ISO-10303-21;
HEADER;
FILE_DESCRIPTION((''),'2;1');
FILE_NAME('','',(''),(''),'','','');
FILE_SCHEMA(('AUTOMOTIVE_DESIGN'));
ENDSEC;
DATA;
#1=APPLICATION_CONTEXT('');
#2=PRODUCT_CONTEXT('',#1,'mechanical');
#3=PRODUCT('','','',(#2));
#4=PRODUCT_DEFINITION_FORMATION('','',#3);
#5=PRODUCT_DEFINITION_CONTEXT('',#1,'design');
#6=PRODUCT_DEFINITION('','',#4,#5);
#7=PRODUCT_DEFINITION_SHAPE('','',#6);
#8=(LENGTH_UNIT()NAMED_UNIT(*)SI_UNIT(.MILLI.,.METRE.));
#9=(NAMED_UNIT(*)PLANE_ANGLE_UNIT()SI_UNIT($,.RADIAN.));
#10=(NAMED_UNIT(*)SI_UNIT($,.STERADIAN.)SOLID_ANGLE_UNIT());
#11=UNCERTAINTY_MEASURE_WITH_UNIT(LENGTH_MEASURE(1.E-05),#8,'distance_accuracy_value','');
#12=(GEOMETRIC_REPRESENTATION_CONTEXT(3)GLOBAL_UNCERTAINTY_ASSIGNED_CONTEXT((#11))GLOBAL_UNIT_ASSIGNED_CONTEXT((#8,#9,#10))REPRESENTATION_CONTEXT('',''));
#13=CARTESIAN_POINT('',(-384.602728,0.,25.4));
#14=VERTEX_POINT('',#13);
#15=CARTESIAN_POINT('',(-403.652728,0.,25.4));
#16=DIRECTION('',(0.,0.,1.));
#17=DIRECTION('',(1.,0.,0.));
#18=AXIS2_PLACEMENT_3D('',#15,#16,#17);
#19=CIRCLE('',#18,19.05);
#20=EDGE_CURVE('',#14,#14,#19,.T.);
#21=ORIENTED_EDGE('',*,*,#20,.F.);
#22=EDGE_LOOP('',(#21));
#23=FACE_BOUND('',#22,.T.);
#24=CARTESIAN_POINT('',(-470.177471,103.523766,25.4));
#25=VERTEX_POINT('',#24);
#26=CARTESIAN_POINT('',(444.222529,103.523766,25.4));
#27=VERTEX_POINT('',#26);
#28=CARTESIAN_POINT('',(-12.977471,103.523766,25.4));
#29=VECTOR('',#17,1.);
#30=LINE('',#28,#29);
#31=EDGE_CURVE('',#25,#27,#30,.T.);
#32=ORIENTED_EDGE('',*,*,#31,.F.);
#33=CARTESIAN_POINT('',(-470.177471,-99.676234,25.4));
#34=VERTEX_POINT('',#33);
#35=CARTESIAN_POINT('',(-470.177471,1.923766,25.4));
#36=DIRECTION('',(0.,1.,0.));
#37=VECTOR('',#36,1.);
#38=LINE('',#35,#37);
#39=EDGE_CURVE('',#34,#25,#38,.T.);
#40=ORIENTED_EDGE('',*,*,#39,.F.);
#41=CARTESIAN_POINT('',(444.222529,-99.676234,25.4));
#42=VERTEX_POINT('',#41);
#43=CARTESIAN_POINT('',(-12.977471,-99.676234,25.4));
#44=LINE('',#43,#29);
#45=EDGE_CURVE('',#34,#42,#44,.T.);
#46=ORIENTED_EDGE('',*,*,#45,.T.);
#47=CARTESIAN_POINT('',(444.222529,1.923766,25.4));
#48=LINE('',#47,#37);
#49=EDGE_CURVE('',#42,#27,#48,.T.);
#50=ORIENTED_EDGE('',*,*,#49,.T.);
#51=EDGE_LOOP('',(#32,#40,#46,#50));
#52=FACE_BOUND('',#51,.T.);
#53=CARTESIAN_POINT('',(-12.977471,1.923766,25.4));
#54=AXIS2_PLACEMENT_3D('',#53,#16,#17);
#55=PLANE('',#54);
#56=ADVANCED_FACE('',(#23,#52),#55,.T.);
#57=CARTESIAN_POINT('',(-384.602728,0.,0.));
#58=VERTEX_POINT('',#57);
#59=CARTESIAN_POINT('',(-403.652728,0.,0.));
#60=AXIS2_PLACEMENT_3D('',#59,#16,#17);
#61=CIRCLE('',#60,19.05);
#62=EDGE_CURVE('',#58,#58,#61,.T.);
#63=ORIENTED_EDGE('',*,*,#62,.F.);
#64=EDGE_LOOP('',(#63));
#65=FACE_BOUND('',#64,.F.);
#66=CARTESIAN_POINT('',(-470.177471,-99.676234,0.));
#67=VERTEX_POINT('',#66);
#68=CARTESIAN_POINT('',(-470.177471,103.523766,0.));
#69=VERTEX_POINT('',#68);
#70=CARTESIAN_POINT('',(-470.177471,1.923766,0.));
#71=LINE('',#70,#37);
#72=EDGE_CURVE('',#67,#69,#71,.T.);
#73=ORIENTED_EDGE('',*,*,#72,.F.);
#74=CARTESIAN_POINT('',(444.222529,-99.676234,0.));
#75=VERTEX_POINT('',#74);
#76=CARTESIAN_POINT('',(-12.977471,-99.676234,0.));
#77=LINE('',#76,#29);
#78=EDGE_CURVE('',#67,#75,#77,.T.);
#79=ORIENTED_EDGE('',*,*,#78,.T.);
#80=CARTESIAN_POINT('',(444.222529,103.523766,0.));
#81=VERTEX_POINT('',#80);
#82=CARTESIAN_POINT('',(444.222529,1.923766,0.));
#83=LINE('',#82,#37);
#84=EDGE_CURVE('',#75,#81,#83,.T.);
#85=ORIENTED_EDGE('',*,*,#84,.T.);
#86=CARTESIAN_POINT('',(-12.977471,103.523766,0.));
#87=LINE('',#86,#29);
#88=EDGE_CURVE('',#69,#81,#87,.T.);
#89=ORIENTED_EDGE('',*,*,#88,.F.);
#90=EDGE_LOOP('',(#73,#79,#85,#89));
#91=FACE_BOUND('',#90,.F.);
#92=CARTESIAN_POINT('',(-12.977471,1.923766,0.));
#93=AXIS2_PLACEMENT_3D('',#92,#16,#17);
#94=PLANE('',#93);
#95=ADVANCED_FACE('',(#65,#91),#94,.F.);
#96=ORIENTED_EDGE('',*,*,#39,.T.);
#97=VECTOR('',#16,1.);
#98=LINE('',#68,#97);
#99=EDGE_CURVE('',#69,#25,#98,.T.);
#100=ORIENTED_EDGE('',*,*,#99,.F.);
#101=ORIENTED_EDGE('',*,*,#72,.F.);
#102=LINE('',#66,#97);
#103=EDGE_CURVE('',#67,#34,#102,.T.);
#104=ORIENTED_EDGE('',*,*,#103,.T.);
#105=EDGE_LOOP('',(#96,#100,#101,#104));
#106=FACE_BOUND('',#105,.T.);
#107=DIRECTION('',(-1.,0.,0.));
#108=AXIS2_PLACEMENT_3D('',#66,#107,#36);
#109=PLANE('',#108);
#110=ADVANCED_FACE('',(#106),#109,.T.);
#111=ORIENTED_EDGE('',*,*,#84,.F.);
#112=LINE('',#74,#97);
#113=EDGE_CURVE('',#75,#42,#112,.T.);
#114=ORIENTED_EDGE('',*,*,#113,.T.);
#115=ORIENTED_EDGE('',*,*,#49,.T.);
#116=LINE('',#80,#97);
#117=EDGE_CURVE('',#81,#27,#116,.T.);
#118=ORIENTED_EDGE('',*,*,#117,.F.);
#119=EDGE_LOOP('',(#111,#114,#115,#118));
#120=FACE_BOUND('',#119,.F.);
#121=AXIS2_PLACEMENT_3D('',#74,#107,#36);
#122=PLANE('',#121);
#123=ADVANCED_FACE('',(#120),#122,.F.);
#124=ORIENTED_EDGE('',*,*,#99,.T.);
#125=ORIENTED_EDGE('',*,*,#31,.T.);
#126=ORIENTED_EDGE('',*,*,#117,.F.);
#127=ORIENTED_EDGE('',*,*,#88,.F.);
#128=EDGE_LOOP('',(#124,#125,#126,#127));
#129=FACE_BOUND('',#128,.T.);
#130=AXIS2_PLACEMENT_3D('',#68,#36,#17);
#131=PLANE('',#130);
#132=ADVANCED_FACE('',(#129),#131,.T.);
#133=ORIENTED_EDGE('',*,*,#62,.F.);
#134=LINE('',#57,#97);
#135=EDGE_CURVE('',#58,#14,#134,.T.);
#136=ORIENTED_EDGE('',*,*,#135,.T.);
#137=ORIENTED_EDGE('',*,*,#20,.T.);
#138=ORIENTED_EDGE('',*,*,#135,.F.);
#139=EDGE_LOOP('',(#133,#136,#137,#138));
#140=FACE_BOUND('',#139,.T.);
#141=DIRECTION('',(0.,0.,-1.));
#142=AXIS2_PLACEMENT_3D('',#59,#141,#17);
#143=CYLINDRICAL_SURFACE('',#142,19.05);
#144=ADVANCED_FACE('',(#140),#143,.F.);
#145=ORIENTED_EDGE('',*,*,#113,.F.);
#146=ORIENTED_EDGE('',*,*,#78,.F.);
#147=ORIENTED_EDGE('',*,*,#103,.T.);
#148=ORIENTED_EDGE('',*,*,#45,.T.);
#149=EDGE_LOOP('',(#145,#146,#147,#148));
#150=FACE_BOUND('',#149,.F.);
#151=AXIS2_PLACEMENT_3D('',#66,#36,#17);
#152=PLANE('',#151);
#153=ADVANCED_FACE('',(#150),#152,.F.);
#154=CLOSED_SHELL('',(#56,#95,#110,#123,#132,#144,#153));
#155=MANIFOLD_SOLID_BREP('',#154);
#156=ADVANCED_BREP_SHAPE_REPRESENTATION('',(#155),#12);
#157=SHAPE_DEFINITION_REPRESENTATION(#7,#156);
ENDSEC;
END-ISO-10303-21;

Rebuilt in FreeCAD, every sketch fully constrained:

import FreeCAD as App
import Part
import Sketcher
Q = App.Units.Quantity


def add_polygon(sketch, points):
    """Adds a closed chain of lines whose ends are joined by coincident constraints."""
    first, n = sketch.GeometryCount, len(points)
    for a, b in zip(points, points[1:] + points[:1]):
        sketch.addGeometry(Part.LineSegment(App.Vector(*a, 0), App.Vector(*b, 0)), False)
    for i in range(n):
        sketch.addConstraint(Sketcher.Constraint("Coincident", first + i, 2, first + (i + 1) % n, 1))

doc = App.newDocument("Part")
body = doc.addObject("PartDesign::Body", "Body")

# Sketch on XY plane
sketch1 = body.newObject("Sketcher::SketchObject", "Sketch")
sketch1.AttachmentSupport = (doc.getObject("XY_Plane"), [""])
sketch1.MapMode = "FlatFace"
add_polygon(sketch1, [(-470, 104), (-470, -100), (444, -100), (444, 104)])  # lines 0-3
sketch1.addGeometry(Part.Circle(App.Vector(-404, 0, 0), App.Vector(0, 0, 1), 19), False)  # 4
sketch1.addConstraint([
    Sketcher.Constraint("Vertical", 0),
    Sketcher.Constraint("Horizontal", 1),
    Sketcher.Constraint("Vertical", 2),
    Sketcher.Constraint("Horizontal", 3),
    Sketcher.Constraint("PointOnObject", 4, 3, -1),
    Sketcher.Constraint("Diameter", 4, Q("1.5 in")),
    Sketcher.Constraint("DistanceX", 1, 1, 1, 2, Q("36 in")),
    Sketcher.Constraint("DistanceY", 0, 2, 0, 1, Q("8 in")),
    Sketcher.Constraint("DistanceX", 4, 3, -1, 1, 403.652728),
    Sketcher.Constraint("DistanceX", 0, 2, -1, 1, 470.177471),
    Sketcher.Constraint("DistanceY", 0, 2, -1, 1, 99.676234),
])
pad1 = body.newObject("PartDesign::Pad", "Pad")
pad1.Profile = sketch1
pad1.Length = Q("1 in")

doc.recompute()
